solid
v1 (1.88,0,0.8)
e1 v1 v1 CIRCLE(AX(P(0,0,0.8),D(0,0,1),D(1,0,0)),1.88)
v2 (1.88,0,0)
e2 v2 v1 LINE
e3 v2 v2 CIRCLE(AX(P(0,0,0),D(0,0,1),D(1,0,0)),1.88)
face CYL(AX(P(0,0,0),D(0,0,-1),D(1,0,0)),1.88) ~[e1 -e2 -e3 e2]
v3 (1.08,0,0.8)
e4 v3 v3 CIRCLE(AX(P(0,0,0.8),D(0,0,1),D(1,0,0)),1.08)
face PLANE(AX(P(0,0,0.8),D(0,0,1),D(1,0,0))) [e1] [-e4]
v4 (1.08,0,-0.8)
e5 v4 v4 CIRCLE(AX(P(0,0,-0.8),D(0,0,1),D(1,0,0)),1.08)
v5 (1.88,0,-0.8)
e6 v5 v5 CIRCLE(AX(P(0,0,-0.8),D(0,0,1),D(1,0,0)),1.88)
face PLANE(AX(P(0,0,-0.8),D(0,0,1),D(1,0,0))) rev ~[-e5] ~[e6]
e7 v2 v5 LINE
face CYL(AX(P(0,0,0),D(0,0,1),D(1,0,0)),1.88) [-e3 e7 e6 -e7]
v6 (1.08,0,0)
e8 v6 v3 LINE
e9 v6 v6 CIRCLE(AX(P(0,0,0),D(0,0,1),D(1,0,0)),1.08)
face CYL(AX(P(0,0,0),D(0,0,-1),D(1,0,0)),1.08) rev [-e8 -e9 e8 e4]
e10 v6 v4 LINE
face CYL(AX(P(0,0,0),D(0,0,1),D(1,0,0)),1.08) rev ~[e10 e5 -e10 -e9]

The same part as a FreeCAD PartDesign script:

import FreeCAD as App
import Part
import Sketcher
from FreeCAD import Vector

doc = App.newDocument("Part")
body = doc.addObject("PartDesign::Body", "Body")

# Sketch on XY plane
sketch1 = doc.addObject("Sketcher::SketchObject", "Sketch")
body.addObject(sketch1)
sketch1.AttachmentSupport = (doc.XY_Plane, [""])
sketch1.MapMode = "FlatFace"
sketch1.addGeometry(Part.Circle(Vector(0, 0, 0), Vector(0, 0, 1), 1.9), False)
sketch1.addGeometry(Part.Circle(Vector(0, 0, 0), Vector(0, 0, 1), 1.1), False)
sketch1.addConstraint(Sketcher.Constraint("Coincident", 0, 3, -1, 1))
sketch1.addConstraint(Sketcher.Constraint("Coincident", 1, 3, -1, 1))
sketch1.addConstraint(Sketcher.Constraint("Diameter", 0, 3.76))
sketch1.addConstraint(Sketcher.Constraint("Diameter", 1, 2.16))
pad1 = doc.addObject("PartDesign::Pad", "Pad")
body.addObject(pad1)
pad1.Profile = sketch1
pad1.Length = 1.6
pad1.Midplane = True

doc.recompute()
